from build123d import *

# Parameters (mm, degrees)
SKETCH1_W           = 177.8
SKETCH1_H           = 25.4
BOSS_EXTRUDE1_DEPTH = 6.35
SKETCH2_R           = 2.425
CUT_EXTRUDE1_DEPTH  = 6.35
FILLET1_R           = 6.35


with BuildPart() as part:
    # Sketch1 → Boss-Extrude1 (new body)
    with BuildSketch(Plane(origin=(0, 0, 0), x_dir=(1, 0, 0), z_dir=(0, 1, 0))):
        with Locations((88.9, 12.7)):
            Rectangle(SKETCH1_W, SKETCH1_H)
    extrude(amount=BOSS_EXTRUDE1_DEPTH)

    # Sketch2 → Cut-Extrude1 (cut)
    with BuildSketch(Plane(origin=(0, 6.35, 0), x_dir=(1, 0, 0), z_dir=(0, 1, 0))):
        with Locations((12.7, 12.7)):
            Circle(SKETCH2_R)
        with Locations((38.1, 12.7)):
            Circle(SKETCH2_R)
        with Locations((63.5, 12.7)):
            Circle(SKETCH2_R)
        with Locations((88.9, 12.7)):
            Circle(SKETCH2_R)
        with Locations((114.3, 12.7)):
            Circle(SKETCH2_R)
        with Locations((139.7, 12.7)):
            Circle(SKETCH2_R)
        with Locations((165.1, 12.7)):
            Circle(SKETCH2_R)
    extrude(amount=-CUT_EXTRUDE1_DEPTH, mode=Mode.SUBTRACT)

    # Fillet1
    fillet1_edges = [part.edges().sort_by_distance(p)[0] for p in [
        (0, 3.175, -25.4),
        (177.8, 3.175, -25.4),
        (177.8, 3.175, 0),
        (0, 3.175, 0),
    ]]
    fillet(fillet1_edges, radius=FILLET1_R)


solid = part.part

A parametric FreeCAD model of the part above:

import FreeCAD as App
import Part
import Sketcher

V = App.Vector
Q = App.Units.Quantity


def edges_at(feature, points):
    """Names of the edges that pass closest to the given points."""
    edges = feature.Shape.Edges
    near = lambda p: min(range(len(edges)), key=lambda i: edges[i].distToShape(Part.Vertex(*p))[0])
    return sorted({f"Edge{near(p) + 1}" for p in points})


def add_polygon(sketch, points):
    """Adds a closed chain of lines whose ends are joined by coincident constraints."""
    first, n = sketch.GeometryCount, len(points)
    for a, b in zip(points, points[1:] + points[:1]):
        sketch.addGeometry(Part.LineSegment(App.Vector(*a, 0), App.Vector(*b, 0)), False)
    for i in range(n):
        sketch.addConstraint(Sketcher.Constraint("Coincident", first + i, 2, first + (i + 1) % n, 1))

doc = App.newDocument("Part")
body = doc.addObject("PartDesign::Body", "Body")

# Sketch on XZ plane
sketch1 = body.newObject("Sketcher::SketchObject", "Sketch")
sketch1.AttachmentSupport = (doc.getObject("XZ_Plane"), [""])
sketch1.MapMode = "FlatFace"
add_polygon(sketch1, [(0, -25.4), (0, 0), (177.8, 0), (177.8, -25.4)])  # lines 0-3
sketch1.addConstraint(Sketcher.Constraint("Vertical", 0))
sketch1.addConstraint(Sketcher.Constraint("Horizontal", 1))
sketch1.addConstraint(Sketcher.Constraint("Vertical", 2))
sketch1.addConstraint(Sketcher.Constraint("Horizontal", 3))
sketch1.addConstraint(Sketcher.Constraint("Coincident", 0, 2, -1, 1))
sketch1.addConstraint(Sketcher.Constraint("DistanceX", 1, 1, 1, 2, Q("7 in")))
sketch1.addConstraint(Sketcher.Constraint("DistanceY", 0, 1, 0, 2, Q("1 in")))
pad1 = body.newObject("PartDesign::Pad", "Pad")
pad1.Profile = sketch1
pad1.Length = Q("0.25 in")
pad1.Reversed = True

# Sketch on XZ plane
sketch2 = body.newObject("Sketcher::SketchObject", "Sketch001")
sketch2.AttachmentSupport = (doc.getObject("XZ_Plane"), [""])
sketch2.MapMode = "FlatFace"
sketch2.AttachmentOffset = App.Placement(V(0, 0, -0.25 * 25.4), App.Rotation())
sketch2.addGeometry(Part.Circle(V(12.7, -12.7, 0), V(0, 0, 1), 2.425), False)
sketch2.addGeometry(Part.Circle(V(38.1, -12.7, 0), V(0, 0, 1), 2.425), False)
sketch2.addGeometry(Part.Circle(V(63.5, -12.7, 0), V(0, 0, 1), 2.425), False)
sketch2.addGeometry(Part.Circle(V(88.9, -12.7, 0), V(0, 0, 1), 2.425), False)
sketch2.addGeometry(Part.Circle(V(114.3, -12.7, 0), V(0, 0, 1), 2.425), False)
sketch2.addGeometry(Part.Circle(V(139.7, -12.7, 0), V(0, 0, 1), 2.425), False)
sketch2.addGeometry(Part.Circle(V(165.1, -12.7, 0), V(0, 0, 1), 2.425), False)
sketch2.addConstraint(Sketcher.Constraint("Equal", 0, 1))
sketch2.addConstraint(Sketcher.Constraint("Equal", 1, 2))
sketch2.addConstraint(Sketcher.Constraint("Equal", 2, 3))
sketch2.addConstraint(Sketcher.Constraint("Equal", 3, 4))
sketch2.addConstraint(Sketcher.Constraint("Equal", 4, 5))
sketch2.addConstraint(Sketcher.Constraint("Equal", 5, 6))
sketch2.addConstraint(Sketcher.Constraint("Horizontal", 0, 3, 1, 3))
sketch2.addConstraint(Sketcher.Constraint("Horizontal", 1, 3, 2, 3))
sketch2.addConstraint(Sketcher.Constraint("Horizontal", 2, 3, 3, 3))
sketch2.addConstraint(Sketcher.Constraint("Horizontal", 3, 3, 4, 3))
sketch2.addConstraint(Sketcher.Constraint("Horizontal", 4, 3, 5, 3))
sketch2.addConstraint(Sketcher.Constraint("Horizontal", 5, 3, 6, 3))
sketch2.addConstraint(Sketcher.Constraint("DistanceX", 0, 3, 1, 3, Q("1 in")))
sketch2.addConstraint(Sketcher.Constraint("DistanceX", 1, 3, 2, 3, Q("1 in")))
sketch2.addConstraint(Sketcher.Constraint("DistanceX", 2, 3, 3, 3, Q("1 in")))
sketch2.addConstraint(Sketcher.Constraint("DistanceX", 3, 3, 4, 3, Q("1 in")))
sketch2.addConstraint(Sketcher.Constraint("DistanceX", 4, 3, 5, 3, Q("1 in")))
sketch2.addConstraint(Sketcher.Constraint("DistanceX", 5, 3, 6, 3, Q("1 in")))
sketch2.addConstraint(Sketcher.Constraint("DistanceX", -1, 1, 0, 3, Q("0.5 in")))
sketch2.addConstraint(Sketcher.Constraint("DistanceY", 0, 3, -1, 1, Q("0.5 in")))
sketch2.addConstraint(Sketcher.Constraint("Diameter", 0, 4.85))
pocket1 = body.newObject("PartDesign::Pocket", "Pocket")
pocket1.Profile = sketch2
pocket1.Length = Q("0.25 in")
pocket1.Reversed = True
doc.recompute()

fillet = body.newObject("PartDesign::Fillet", "Fillet")
fillet.Base = (pocket1, edges_at(pocket1, [
    (0, 3.175, -25.4),
    (177.8, 3.175, -25.4),
    (177.8, 3.175, 0),
    (0, 3.175, 0),
]))
fillet.Radius = Q("0.25 in")

doc.recompute()
